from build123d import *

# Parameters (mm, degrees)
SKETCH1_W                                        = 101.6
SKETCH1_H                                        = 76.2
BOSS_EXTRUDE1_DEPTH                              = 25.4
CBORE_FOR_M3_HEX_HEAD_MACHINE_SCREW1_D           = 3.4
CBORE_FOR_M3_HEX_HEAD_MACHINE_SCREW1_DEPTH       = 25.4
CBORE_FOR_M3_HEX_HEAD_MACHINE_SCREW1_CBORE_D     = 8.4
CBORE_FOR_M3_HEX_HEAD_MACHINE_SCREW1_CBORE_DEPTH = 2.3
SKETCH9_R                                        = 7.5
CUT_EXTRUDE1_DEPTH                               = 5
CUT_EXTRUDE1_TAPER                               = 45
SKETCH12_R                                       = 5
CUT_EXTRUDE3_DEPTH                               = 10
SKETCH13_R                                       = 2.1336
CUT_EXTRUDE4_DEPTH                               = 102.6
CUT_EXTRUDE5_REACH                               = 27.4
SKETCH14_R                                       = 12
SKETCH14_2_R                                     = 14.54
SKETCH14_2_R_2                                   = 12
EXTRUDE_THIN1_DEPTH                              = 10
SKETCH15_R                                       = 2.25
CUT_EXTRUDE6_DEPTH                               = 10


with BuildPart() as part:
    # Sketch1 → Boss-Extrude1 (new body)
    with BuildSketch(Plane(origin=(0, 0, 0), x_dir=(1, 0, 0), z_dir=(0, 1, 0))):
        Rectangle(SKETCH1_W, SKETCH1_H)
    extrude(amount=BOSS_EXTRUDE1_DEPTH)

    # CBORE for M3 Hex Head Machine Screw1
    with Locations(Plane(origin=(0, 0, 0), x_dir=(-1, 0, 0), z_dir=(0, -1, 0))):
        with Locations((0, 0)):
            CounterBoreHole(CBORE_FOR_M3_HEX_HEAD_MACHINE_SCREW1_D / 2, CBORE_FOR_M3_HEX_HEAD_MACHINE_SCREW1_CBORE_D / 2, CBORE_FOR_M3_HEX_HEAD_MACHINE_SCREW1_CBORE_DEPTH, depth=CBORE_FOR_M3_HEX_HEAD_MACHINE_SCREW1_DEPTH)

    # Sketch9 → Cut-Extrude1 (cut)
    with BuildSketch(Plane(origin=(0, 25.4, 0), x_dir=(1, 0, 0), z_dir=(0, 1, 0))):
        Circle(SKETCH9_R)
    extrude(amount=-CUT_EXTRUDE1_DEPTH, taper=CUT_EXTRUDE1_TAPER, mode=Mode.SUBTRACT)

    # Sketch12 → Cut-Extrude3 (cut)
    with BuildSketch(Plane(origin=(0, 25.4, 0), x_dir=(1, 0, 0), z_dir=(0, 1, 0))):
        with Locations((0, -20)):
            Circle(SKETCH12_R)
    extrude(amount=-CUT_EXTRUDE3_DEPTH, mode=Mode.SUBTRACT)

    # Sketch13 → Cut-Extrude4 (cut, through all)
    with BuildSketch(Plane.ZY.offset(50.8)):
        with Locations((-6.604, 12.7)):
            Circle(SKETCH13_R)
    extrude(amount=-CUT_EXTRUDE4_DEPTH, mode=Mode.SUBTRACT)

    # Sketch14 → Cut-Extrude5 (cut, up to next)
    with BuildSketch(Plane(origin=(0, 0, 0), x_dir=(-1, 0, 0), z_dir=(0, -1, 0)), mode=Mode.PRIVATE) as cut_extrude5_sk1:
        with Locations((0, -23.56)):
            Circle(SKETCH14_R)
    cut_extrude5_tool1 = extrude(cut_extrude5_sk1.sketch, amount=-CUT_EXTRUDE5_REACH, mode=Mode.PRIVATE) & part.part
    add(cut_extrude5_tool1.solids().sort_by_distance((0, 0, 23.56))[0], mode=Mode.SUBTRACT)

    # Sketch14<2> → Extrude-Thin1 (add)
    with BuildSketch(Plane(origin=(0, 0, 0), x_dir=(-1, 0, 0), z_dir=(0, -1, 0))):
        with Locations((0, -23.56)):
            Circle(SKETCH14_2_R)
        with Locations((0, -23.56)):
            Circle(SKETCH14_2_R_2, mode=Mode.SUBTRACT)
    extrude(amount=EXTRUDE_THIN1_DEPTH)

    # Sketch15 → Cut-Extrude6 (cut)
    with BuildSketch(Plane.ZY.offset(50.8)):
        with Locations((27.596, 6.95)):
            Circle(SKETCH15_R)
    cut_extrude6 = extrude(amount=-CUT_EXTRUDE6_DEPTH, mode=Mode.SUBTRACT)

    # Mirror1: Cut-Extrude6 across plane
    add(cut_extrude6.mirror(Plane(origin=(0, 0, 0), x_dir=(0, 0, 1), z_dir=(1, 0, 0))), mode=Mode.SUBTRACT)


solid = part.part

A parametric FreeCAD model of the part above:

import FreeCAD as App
import Part
import Sketcher

V = App.Vector
Q = App.Units.Quantity

doc = App.newDocument("Part")
body = doc.addObject("PartDesign::Body", "Body")

sketch1 = body.newObject("Sketcher::SketchObject", "Sketch")
sketch1.AttachmentSupport = (doc.getObject("XZ_Plane"), [""])
sketch1.MapMode = "FlatFace"
sketch1.addGeometry([
    Part.LineSegment(V(-51, -38, 0), V(-51, 38, 0)),
    Part.LineSegment(V(-51, 38, 0), V(51, 38, 0)),
    Part.LineSegment(V(51, 38, 0), V(51, -38, 0)),
    Part.LineSegment(V(51, -38, 0), V(-51, -38, 0)),
], False)
sketch1.addConstraint([
    Sketcher.Constraint("Coincident", 0, 2, 1, 1),
    Sketcher.Constraint("Coincident", 1, 2, 2, 1),
    Sketcher.Constraint("Coincident", 2, 2, 3, 1),
    Sketcher.Constraint("Coincident", 3, 2, 0, 1),
    Sketcher.Constraint("Vertical", 0),
    Sketcher.Constraint("Horizontal", 1),
    Sketcher.Constraint("Vertical", 2),
    Sketcher.Constraint("Horizontal", 3),
    Sketcher.Constraint("Symmetric", 0, 2, 2, 2, -1, 1),
    Sketcher.Constraint("DistanceX", 1, 1, 1, 2, Q("101.6 mm")),
    Sketcher.Constraint("DistanceY", 0, 1, 0, 2, Q("76.2 mm")),
])
pad1 = body.newObject("PartDesign::Pad", "Pad")
pad1.Profile = sketch1
pad1.Length = 25.4
pad1.Reversed = True

sketch2 = body.newObject("Sketcher::SketchObject", "Sketch001")
sketch2.AttachmentSupport = (doc.getObject("XZ_Plane"), [""])
sketch2.MapMode = "FlatFace"
sketch2.addGeometry(Part.Circle(V(0, 0, 0), V(0, 0, 1), 1.7), False)
sketch2.addConstraint([
    Sketcher.Constraint("Coincident", 0, 3, -1, 1),
    Sketcher.Constraint("Diameter", 0, Q("3.4 mm")),
])
doc.recompute()
hole = body.newObject("PartDesign::Hole", "Hole")
hole.Profile = sketch2
hole.ThreadType = "None"
hole.Diameter = 3.4
hole.DepthType = "Dimension"
hole.Depth = 25.4
hole.DrillPoint = "Flat"
hole.HoleCutType = "Counterbore"
hole.HoleCutDiameter = 8.4
hole.HoleCutDepth = 2.3

sketch3 = body.newObject("Sketcher::SketchObject", "Sketch002")
sketch3.AttachmentSupport = (doc.getObject("XZ_Plane"), [""])
sketch3.MapMode = "FlatFace"
sketch3.AttachmentOffset = App.Placement(V(0, 0, -25.4), App.Rotation())
sketch3.addGeometry(Part.Circle(V(0, 0, 0), V(0, 0, 1), 8), False)
sketch3.addConstraint([
    Sketcher.Constraint("Coincident", 0, 3, -1, 1),
    Sketcher.Constraint("Diameter", 0, Q("15 mm")),
])
pocket1 = body.newObject("PartDesign::Pocket", "Pocket")
pocket1.Profile = sketch3
pocket1.Length = 5
pocket1.Reversed = True
pocket1.TaperAngle = -45

sketch4 = body.newObject("Sketcher::SketchObject", "Sketch003")
sketch4.AttachmentSupport = (doc.getObject("XZ_Plane"), [""])
sketch4.MapMode = "FlatFace"
sketch4.AttachmentOffset = App.Placement(V(0, 0, -25.4), App.Rotation())
sketch4.addGeometry(Part.Circle(V(0, 20, 0), V(0, 0, 1), 5), False)
sketch4.addConstraint([
    Sketcher.Constraint("PointOnObject", 0, 3, -2),
    Sketcher.Constraint("Diameter", 0, Q("10 mm")),
    Sketcher.Constraint("DistanceY", -1, 1, 0, 3, Q("20 mm")),
])
pocket2 = body.newObject("PartDesign::Pocket", "Pocket001")
pocket2.Profile = sketch4
pocket2.Length = 10
pocket2.Reversed = True

sketch5 = body.newObject("Sketcher::SketchObject", "Sketch004")
sketch5.AttachmentSupport = (doc.getObject("YZ_Plane"), [""])
sketch5.MapMode = "FlatFace"
sketch5.AttachmentOffset = App.Placement(V(0, 0, -50.8), App.Rotation())
sketch5.addGeometry(Part.Circle(V(12.7, -6.6, 0), V(0, 0, 1), 2.1), False)
sketch5.addConstraint([
    Sketcher.Constraint("Diameter", 0, Q("4.2672 mm")),
    Sketcher.Constraint("DistanceX", -1, 1, 0, 3, Q("12.7 mm")),
    Sketcher.Constraint("DistanceY", 0, 3, -1, 1, Q("6.604 mm")),
])
pocket3 = body.newObject("PartDesign::Pocket", "Pocket002")
pocket3.Profile = sketch5
pocket3.Type = "ThroughAll"
pocket3.Reversed = True

sketch6 = body.newObject("Sketcher::SketchObject", "Sketch005")
sketch6.AttachmentSupport = (doc.getObject("XZ_Plane"), [""])
sketch6.MapMode = "FlatFace"
sketch6.addGeometry(Part.Circle(V(0, 24, 0), V(0, 0, 1), 12), False)
sketch6.addConstraint([
    Sketcher.Constraint("PointOnObject", 0, 3, -2),
    Sketcher.Constraint("Diameter", 0, Q("24 mm")),
    Sketcher.Constraint("DistanceY", -1, 1, 0, 3, Q("23.56 mm")),
])
pocket4 = body.newObject("PartDesign::Pocket", "Pocket003")
pocket4.Profile = sketch6
pocket4.Length = 25.4

sketch7 = body.newObject("Sketcher::SketchObject", "Sketch006")
sketch7.AttachmentSupport = (doc.getObject("XZ_Plane"), [""])
sketch7.MapMode = "FlatFace"
sketch7.addGeometry([
    Part.Circle(V(0, 24, 0), V(0, 0, 1), 15),
    Part.Circle(V(0, 24, 0), V(0, 0, 1), 12),
], False)
sketch7.addConstraint([
    Sketcher.Constraint("Coincident", 1, 3, 0, 3),
    Sketcher.Constraint("PointOnObject", 0, 3, -2),
    Sketcher.Constraint("Diameter", 1, Q("24 mm")),
    Sketcher.Constraint("Diameter", 0, Q("29.08 mm")),
    Sketcher.Constraint("DistanceY", -1, 1, 0, 3, Q("23.56 mm")),
])
pad2 = body.newObject("PartDesign::Pad", "Pad001")
pad2.Profile = sketch7
pad2.Length = 10

sketch8 = body.newObject("Sketcher::SketchObject", "Sketch007")
sketch8.AttachmentSupport = (doc.getObject("YZ_Plane"), [""])
sketch8.MapMode = "FlatFace"
sketch8.AttachmentOffset = App.Placement(V(0, 0, -50.8), App.Rotation())
sketch8.addGeometry(Part.Circle(V(7, 27.6, 0), V(0, 0, 1), 2.2), False)
sketch8.addConstraint([
    Sketcher.Constraint("Diameter", 0, Q("4.5 mm")),
    Sketcher.Constraint("DistanceX", -1, 1, 0, 3, Q("6.95 mm")),
    Sketcher.Constraint("DistanceY", -1, 1, 0, 3, Q("27.596 mm")),
])
pocket5 = body.newObject("PartDesign::Pocket", "Pocket004")
pocket5.Profile = sketch8
pocket5.Length = 10
pocket5.Reversed = True
doc.recompute()

mirrored = body.newObject("PartDesign::Mirrored", "Mirrored")
mirrored.Originals = [pocket5]
mirrored.MirrorPlane = (doc.getObject("YZ_Plane"), [""])
body.Tip = mirrored

doc.recompute()
